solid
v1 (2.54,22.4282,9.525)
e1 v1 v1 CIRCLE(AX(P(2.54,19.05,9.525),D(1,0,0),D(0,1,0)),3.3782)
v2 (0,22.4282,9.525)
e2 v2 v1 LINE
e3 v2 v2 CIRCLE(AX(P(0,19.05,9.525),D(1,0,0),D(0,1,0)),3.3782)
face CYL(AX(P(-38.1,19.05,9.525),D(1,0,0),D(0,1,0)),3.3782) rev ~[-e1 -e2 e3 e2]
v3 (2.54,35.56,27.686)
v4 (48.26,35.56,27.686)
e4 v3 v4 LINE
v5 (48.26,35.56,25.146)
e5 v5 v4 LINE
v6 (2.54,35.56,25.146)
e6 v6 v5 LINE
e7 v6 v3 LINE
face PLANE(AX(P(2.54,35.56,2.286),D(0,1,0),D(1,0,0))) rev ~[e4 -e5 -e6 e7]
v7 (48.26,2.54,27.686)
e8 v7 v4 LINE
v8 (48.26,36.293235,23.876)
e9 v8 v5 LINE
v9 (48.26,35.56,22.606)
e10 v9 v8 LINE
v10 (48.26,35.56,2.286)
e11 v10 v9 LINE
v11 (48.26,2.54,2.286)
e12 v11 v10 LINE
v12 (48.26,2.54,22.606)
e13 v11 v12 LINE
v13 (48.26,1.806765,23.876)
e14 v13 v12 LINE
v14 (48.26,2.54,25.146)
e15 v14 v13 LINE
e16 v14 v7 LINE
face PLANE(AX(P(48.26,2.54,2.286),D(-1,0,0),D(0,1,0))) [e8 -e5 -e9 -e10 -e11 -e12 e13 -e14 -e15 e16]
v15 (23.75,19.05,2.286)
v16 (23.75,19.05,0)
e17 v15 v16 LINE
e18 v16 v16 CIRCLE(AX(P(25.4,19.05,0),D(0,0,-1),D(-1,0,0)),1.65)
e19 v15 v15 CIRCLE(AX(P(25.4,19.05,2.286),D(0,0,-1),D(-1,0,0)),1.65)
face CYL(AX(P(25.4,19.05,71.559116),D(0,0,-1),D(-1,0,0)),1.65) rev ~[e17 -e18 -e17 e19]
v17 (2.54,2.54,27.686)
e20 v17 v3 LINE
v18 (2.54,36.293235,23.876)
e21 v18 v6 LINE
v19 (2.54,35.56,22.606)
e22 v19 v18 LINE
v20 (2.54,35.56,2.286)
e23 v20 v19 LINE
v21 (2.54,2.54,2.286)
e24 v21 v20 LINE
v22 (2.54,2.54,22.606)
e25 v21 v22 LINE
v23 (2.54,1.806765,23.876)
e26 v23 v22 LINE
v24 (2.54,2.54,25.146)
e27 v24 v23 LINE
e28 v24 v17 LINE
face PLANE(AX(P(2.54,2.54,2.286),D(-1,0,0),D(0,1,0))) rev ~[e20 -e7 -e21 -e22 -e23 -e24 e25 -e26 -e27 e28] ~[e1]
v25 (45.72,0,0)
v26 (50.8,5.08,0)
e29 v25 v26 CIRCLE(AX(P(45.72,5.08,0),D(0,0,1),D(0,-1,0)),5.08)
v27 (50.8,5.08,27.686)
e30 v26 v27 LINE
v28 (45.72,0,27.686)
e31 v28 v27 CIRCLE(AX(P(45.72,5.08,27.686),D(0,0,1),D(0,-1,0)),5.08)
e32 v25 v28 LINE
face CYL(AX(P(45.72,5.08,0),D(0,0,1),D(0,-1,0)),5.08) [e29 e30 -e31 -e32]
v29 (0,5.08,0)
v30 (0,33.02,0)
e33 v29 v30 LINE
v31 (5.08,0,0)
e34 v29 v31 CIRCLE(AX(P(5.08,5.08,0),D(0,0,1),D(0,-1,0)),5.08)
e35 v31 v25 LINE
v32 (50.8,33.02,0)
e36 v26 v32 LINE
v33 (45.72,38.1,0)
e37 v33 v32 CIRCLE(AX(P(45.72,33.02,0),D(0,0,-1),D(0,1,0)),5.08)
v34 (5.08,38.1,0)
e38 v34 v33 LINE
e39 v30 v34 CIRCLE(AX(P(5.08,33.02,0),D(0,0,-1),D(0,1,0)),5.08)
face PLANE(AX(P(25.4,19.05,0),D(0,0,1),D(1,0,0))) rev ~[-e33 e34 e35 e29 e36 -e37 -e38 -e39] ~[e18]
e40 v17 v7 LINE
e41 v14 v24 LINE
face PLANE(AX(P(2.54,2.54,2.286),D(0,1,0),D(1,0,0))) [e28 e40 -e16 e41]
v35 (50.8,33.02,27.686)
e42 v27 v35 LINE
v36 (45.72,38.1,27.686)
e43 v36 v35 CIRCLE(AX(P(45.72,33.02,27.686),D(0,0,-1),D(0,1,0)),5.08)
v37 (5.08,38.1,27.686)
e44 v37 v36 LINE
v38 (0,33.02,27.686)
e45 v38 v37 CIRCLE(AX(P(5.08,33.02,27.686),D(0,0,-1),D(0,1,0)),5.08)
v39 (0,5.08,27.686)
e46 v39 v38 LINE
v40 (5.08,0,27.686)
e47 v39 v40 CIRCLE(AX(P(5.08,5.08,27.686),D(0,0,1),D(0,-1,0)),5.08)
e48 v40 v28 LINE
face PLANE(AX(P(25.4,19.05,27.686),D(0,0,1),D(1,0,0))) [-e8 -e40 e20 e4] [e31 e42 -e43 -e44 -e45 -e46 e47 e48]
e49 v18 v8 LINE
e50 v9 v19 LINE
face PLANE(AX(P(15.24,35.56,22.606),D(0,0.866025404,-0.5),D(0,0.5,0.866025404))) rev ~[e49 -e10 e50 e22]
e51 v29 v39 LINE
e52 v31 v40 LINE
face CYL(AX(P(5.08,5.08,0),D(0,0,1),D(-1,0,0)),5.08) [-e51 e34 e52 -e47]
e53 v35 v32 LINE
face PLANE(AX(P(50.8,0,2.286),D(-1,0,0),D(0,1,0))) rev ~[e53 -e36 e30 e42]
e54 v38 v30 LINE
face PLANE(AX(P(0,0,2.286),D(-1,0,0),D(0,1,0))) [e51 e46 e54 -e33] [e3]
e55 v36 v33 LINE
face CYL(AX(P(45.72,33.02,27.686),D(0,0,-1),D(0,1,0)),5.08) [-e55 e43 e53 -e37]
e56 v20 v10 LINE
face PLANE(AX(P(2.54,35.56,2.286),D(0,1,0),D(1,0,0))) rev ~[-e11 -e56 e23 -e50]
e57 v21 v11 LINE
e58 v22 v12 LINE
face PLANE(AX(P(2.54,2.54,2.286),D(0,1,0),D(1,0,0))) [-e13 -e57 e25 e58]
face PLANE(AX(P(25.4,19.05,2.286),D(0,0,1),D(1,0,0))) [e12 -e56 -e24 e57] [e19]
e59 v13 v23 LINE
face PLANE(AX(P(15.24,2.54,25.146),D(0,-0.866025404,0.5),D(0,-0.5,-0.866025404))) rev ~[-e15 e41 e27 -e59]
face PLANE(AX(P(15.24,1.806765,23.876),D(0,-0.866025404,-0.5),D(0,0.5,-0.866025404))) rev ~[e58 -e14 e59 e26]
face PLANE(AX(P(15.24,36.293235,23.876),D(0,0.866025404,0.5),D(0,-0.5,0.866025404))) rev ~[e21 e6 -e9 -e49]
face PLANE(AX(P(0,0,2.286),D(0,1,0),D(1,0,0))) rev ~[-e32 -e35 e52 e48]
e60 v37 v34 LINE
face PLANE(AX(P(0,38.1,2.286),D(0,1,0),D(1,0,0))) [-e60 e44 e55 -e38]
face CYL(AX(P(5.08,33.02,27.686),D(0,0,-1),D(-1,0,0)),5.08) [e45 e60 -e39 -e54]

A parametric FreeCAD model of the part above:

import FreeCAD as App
import Part
import Sketcher

V = App.Vector
Q = App.Units.Quantity


def edges_at(feature, points):
    """Names of the edges that pass closest to the given points."""
    edges = feature.Shape.Edges
    near = lambda p: min(range(len(edges)), key=lambda i: edges[i].distToShape(Part.Vertex(*p))[0])
    return sorted({f"Edge{near(p) + 1}" for p in points})


def add_polygon(sketch, points):
    """Adds a closed chain of lines whose ends are joined by coincident constraints."""
    first, n = sketch.GeometryCount, len(points)
    for a, b in zip(points, points[1:] + points[:1]):
        sketch.addGeometry(Part.LineSegment(App.Vector(*a, 0), App.Vector(*b, 0)), False)
    for i in range(n):
        sketch.addConstraint(Sketcher.Constraint("Coincident", first + i, 2, first + (i + 1) % n, 1))

doc = App.newDocument("Part")
body = doc.addObject("PartDesign::Body", "Body")

# Sketch on XY plane
sketch1 = body.newObject("Sketcher::SketchObject", "Sketch")
sketch1.AttachmentSupport = (doc.getObject("XY_Plane"), [""])
sketch1.MapMode = "FlatFace"
add_polygon(sketch1, [(0, 38), (0, 0), (51, 0), (51, 38)])  # lines 0-3
sketch1.addConstraint([
    Sketcher.Constraint("Vertical", 0),
    Sketcher.Constraint("Horizontal", 1),
    Sketcher.Constraint("Vertical", 2),
    Sketcher.Constraint("Horizontal", 3),
    Sketcher.Constraint("Coincident", 0, 2, -1, 1),
    Sketcher.Constraint("DistanceX", 1, 1, 1, 2, Q("2 in")),
    Sketcher.Constraint("DistanceY", 0, 2, 0, 1, Q("1.5 in")),
])
pad1 = body.newObject("PartDesign::Pad", "Pad")
pad1.Profile = sketch1
pad1.Length = Q("0.09 in")

# Sketch on XY plane
sketch2 = body.newObject("Sketcher::SketchObject", "Sketch001")
sketch2.AttachmentSupport = (doc.getObject("XY_Plane"), [""])
sketch2.MapMode = "FlatFace"
sketch2.AttachmentOffset = App.Placement(V(0, 0, 0.09 * 25.4), App.Rotation())
add_polygon(sketch2, [(0, 38), (0, 0), (51, 0), (51, 38)])  # lines 0-3
add_polygon(sketch2, [(48, 3), (3, 3), (3, 36), (48, 36)])  # lines 4-7
sketch2.addConstraint([
    Sketcher.Constraint("Vertical", 0),
    Sketcher.Constraint("Horizontal", 1),
    Sketcher.Constraint("Vertical", 2),
    Sketcher.Constraint("Horizontal", 3),
    Sketcher.Constraint("Horizontal", 4),
    Sketcher.Constraint("Vertical", 5),
    Sketcher.Constraint("Horizontal", 6),
    Sketcher.Constraint("Vertical", 7),
    Sketcher.Constraint("Coincident", 0, 2, -1, 1),
    Sketcher.Constraint("DistanceX", 1, 1, 1, 2, Q("2 in")),
    Sketcher.Constraint("DistanceX", 4, 2, 4, 1, Q("1.8 in")),
    Sketcher.Constraint("DistanceY", 0, 2, 0, 1, Q("1.5 in")),
    Sketcher.Constraint("DistanceY", 5, 1, 5, 2, Q("1.3 in")),
    Sketcher.Constraint("DistanceX", -1, 1, 4, 2, Q("0.1 in")),
    Sketcher.Constraint("DistanceY", -1, 1, 4, 2, Q("0.1 in")),
])
pad2 = body.newObject("PartDesign::Pad", "Pad001")
pad2.Profile = sketch2
pad2.Length = Q("1 in")

# Sketch on YZ plane
sketch3 = body.newObject("Sketcher::SketchObject", "Sketch002")
sketch3.AttachmentSupport = (doc.getObject("YZ_Plane"), [""])
sketch3.MapMode = "FlatFace"
sketch3.AttachmentOffset = App.Placement(V(0, 0, 0.6 * 25.4), App.Rotation())
add_polygon(sketch3, [(2.5, 22.6), (2.5, 25.1), (1.8, 23.9)])  # lines 0-2
add_polygon(sketch3, [(36.3, 23.9), (35.6, 25.1), (35.6, 22.6)])  # lines 3-5
sketch3.addConstraint([
    Sketcher.Constraint("Vertical", 0),
    Sketcher.Constraint("Vertical", 4),
    Sketcher.Constraint("Parallel", 2, 3),
    Sketcher.Constraint("Parallel", 1, 5),
    Sketcher.Constraint("Horizontal", 0, 2, 3, 2),
    Sketcher.Constraint("Horizontal", 2, 2, 4, 2),
    Sketcher.Constraint("Horizontal", 1, 2, 5, 2),
    Sketcher.Constraint("DistanceY", 0, 1, 0, 2, Q("0.1 in")),
    Sketcher.Constraint("Angle", 1, Q("-120 deg")),
    Sketcher.Constraint("DistanceX", -1, 1, 0, 2, Q("0.1 in")),
    Sketcher.Constraint("DistanceX", -1, 1, 3, 2, Q("1.4 in")),
    Sketcher.Constraint("DistanceY", -1, 1, 0, 2, Q("0.99 in")),
])
pocket1 = body.newObject("PartDesign::Pocket", "Pocket")
pocket1.Profile = sketch3
pocket1.Type = "TwoLengths"
pocket1.Length = Q("0.5 in")
pocket1.Length2 = Q("1.3 in")

# Sketch on XY plane
sketch4 = body.newObject("Sketcher::SketchObject", "Sketch003")
sketch4.AttachmentSupport = (doc.getObject("XY_Plane"), [""])
sketch4.MapMode = "FlatFace"
sketch4.AttachmentOffset = App.Placement(V(0, 0, 0.09 * 25.4), App.Rotation())
sketch4.addGeometry(Part.Circle(V(25.4, 19.1, 0), V(0, 0, 1), 1.6), False)
sketch4.addConstraint([
    Sketcher.Constraint("DistanceX", -1, 1, 0, 3, Q("1 in")),
    Sketcher.Constraint("Diameter", 0, 3.3),
    Sketcher.Constraint("DistanceY", -1, 1, 0, 3, Q("0.75 in")),
])
doc.recompute()
hole = body.newObject("PartDesign::Hole", "Hole")
hole.Profile = sketch4
hole.ThreadType = "None"
hole.Diameter = 3.3
hole.DepthType = "ThroughAll"

# Sketch on YZ plane
sketch5 = body.newObject("Sketcher::SketchObject", "Sketch004")
sketch5.AttachmentSupport = (doc.getObject("YZ_Plane"), [""])
sketch5.MapMode = "FlatFace"
sketch5.addGeometry(Part.Circle(V(19.1, 9.5, 0), V(0, 0, 1), 3.4), False)
sketch5.addConstraint([
    Sketcher.Constraint("Diameter", 0, Q("0.266 in")),
    Sketcher.Constraint("DistanceX", -1, 1, 0, 3, Q("0.75 in")),
    Sketcher.Constraint("DistanceY", -1, 1, 0, 3, Q("0.375 in")),
])
doc.recompute()
hole2 = body.newObject("PartDesign::Hole", "Hole001")
hole2.Profile = sketch5
hole2.ThreadType = "None"
hole2.Diameter = Q("0.266 in")
hole2.DepthType = "Dimension"
hole2.Depth = Q("1.5 in")
hole2.DrillPoint = "Angled"
hole2.DrillPointAngle = 118
hole2.Reversed = True
doc.recompute()

fillet = body.newObject("PartDesign::Fillet", "Fillet")
fillet.Base = (hole2, edges_at(hole2, [
    (0, 0, 13.843),
    (50.8, 0, 13.843),
    (50.8, 38.1, 13.843),
    (0, 38.1, 13.843),
]))
fillet.Radius = Q("0.2 in")

doc.recompute()
